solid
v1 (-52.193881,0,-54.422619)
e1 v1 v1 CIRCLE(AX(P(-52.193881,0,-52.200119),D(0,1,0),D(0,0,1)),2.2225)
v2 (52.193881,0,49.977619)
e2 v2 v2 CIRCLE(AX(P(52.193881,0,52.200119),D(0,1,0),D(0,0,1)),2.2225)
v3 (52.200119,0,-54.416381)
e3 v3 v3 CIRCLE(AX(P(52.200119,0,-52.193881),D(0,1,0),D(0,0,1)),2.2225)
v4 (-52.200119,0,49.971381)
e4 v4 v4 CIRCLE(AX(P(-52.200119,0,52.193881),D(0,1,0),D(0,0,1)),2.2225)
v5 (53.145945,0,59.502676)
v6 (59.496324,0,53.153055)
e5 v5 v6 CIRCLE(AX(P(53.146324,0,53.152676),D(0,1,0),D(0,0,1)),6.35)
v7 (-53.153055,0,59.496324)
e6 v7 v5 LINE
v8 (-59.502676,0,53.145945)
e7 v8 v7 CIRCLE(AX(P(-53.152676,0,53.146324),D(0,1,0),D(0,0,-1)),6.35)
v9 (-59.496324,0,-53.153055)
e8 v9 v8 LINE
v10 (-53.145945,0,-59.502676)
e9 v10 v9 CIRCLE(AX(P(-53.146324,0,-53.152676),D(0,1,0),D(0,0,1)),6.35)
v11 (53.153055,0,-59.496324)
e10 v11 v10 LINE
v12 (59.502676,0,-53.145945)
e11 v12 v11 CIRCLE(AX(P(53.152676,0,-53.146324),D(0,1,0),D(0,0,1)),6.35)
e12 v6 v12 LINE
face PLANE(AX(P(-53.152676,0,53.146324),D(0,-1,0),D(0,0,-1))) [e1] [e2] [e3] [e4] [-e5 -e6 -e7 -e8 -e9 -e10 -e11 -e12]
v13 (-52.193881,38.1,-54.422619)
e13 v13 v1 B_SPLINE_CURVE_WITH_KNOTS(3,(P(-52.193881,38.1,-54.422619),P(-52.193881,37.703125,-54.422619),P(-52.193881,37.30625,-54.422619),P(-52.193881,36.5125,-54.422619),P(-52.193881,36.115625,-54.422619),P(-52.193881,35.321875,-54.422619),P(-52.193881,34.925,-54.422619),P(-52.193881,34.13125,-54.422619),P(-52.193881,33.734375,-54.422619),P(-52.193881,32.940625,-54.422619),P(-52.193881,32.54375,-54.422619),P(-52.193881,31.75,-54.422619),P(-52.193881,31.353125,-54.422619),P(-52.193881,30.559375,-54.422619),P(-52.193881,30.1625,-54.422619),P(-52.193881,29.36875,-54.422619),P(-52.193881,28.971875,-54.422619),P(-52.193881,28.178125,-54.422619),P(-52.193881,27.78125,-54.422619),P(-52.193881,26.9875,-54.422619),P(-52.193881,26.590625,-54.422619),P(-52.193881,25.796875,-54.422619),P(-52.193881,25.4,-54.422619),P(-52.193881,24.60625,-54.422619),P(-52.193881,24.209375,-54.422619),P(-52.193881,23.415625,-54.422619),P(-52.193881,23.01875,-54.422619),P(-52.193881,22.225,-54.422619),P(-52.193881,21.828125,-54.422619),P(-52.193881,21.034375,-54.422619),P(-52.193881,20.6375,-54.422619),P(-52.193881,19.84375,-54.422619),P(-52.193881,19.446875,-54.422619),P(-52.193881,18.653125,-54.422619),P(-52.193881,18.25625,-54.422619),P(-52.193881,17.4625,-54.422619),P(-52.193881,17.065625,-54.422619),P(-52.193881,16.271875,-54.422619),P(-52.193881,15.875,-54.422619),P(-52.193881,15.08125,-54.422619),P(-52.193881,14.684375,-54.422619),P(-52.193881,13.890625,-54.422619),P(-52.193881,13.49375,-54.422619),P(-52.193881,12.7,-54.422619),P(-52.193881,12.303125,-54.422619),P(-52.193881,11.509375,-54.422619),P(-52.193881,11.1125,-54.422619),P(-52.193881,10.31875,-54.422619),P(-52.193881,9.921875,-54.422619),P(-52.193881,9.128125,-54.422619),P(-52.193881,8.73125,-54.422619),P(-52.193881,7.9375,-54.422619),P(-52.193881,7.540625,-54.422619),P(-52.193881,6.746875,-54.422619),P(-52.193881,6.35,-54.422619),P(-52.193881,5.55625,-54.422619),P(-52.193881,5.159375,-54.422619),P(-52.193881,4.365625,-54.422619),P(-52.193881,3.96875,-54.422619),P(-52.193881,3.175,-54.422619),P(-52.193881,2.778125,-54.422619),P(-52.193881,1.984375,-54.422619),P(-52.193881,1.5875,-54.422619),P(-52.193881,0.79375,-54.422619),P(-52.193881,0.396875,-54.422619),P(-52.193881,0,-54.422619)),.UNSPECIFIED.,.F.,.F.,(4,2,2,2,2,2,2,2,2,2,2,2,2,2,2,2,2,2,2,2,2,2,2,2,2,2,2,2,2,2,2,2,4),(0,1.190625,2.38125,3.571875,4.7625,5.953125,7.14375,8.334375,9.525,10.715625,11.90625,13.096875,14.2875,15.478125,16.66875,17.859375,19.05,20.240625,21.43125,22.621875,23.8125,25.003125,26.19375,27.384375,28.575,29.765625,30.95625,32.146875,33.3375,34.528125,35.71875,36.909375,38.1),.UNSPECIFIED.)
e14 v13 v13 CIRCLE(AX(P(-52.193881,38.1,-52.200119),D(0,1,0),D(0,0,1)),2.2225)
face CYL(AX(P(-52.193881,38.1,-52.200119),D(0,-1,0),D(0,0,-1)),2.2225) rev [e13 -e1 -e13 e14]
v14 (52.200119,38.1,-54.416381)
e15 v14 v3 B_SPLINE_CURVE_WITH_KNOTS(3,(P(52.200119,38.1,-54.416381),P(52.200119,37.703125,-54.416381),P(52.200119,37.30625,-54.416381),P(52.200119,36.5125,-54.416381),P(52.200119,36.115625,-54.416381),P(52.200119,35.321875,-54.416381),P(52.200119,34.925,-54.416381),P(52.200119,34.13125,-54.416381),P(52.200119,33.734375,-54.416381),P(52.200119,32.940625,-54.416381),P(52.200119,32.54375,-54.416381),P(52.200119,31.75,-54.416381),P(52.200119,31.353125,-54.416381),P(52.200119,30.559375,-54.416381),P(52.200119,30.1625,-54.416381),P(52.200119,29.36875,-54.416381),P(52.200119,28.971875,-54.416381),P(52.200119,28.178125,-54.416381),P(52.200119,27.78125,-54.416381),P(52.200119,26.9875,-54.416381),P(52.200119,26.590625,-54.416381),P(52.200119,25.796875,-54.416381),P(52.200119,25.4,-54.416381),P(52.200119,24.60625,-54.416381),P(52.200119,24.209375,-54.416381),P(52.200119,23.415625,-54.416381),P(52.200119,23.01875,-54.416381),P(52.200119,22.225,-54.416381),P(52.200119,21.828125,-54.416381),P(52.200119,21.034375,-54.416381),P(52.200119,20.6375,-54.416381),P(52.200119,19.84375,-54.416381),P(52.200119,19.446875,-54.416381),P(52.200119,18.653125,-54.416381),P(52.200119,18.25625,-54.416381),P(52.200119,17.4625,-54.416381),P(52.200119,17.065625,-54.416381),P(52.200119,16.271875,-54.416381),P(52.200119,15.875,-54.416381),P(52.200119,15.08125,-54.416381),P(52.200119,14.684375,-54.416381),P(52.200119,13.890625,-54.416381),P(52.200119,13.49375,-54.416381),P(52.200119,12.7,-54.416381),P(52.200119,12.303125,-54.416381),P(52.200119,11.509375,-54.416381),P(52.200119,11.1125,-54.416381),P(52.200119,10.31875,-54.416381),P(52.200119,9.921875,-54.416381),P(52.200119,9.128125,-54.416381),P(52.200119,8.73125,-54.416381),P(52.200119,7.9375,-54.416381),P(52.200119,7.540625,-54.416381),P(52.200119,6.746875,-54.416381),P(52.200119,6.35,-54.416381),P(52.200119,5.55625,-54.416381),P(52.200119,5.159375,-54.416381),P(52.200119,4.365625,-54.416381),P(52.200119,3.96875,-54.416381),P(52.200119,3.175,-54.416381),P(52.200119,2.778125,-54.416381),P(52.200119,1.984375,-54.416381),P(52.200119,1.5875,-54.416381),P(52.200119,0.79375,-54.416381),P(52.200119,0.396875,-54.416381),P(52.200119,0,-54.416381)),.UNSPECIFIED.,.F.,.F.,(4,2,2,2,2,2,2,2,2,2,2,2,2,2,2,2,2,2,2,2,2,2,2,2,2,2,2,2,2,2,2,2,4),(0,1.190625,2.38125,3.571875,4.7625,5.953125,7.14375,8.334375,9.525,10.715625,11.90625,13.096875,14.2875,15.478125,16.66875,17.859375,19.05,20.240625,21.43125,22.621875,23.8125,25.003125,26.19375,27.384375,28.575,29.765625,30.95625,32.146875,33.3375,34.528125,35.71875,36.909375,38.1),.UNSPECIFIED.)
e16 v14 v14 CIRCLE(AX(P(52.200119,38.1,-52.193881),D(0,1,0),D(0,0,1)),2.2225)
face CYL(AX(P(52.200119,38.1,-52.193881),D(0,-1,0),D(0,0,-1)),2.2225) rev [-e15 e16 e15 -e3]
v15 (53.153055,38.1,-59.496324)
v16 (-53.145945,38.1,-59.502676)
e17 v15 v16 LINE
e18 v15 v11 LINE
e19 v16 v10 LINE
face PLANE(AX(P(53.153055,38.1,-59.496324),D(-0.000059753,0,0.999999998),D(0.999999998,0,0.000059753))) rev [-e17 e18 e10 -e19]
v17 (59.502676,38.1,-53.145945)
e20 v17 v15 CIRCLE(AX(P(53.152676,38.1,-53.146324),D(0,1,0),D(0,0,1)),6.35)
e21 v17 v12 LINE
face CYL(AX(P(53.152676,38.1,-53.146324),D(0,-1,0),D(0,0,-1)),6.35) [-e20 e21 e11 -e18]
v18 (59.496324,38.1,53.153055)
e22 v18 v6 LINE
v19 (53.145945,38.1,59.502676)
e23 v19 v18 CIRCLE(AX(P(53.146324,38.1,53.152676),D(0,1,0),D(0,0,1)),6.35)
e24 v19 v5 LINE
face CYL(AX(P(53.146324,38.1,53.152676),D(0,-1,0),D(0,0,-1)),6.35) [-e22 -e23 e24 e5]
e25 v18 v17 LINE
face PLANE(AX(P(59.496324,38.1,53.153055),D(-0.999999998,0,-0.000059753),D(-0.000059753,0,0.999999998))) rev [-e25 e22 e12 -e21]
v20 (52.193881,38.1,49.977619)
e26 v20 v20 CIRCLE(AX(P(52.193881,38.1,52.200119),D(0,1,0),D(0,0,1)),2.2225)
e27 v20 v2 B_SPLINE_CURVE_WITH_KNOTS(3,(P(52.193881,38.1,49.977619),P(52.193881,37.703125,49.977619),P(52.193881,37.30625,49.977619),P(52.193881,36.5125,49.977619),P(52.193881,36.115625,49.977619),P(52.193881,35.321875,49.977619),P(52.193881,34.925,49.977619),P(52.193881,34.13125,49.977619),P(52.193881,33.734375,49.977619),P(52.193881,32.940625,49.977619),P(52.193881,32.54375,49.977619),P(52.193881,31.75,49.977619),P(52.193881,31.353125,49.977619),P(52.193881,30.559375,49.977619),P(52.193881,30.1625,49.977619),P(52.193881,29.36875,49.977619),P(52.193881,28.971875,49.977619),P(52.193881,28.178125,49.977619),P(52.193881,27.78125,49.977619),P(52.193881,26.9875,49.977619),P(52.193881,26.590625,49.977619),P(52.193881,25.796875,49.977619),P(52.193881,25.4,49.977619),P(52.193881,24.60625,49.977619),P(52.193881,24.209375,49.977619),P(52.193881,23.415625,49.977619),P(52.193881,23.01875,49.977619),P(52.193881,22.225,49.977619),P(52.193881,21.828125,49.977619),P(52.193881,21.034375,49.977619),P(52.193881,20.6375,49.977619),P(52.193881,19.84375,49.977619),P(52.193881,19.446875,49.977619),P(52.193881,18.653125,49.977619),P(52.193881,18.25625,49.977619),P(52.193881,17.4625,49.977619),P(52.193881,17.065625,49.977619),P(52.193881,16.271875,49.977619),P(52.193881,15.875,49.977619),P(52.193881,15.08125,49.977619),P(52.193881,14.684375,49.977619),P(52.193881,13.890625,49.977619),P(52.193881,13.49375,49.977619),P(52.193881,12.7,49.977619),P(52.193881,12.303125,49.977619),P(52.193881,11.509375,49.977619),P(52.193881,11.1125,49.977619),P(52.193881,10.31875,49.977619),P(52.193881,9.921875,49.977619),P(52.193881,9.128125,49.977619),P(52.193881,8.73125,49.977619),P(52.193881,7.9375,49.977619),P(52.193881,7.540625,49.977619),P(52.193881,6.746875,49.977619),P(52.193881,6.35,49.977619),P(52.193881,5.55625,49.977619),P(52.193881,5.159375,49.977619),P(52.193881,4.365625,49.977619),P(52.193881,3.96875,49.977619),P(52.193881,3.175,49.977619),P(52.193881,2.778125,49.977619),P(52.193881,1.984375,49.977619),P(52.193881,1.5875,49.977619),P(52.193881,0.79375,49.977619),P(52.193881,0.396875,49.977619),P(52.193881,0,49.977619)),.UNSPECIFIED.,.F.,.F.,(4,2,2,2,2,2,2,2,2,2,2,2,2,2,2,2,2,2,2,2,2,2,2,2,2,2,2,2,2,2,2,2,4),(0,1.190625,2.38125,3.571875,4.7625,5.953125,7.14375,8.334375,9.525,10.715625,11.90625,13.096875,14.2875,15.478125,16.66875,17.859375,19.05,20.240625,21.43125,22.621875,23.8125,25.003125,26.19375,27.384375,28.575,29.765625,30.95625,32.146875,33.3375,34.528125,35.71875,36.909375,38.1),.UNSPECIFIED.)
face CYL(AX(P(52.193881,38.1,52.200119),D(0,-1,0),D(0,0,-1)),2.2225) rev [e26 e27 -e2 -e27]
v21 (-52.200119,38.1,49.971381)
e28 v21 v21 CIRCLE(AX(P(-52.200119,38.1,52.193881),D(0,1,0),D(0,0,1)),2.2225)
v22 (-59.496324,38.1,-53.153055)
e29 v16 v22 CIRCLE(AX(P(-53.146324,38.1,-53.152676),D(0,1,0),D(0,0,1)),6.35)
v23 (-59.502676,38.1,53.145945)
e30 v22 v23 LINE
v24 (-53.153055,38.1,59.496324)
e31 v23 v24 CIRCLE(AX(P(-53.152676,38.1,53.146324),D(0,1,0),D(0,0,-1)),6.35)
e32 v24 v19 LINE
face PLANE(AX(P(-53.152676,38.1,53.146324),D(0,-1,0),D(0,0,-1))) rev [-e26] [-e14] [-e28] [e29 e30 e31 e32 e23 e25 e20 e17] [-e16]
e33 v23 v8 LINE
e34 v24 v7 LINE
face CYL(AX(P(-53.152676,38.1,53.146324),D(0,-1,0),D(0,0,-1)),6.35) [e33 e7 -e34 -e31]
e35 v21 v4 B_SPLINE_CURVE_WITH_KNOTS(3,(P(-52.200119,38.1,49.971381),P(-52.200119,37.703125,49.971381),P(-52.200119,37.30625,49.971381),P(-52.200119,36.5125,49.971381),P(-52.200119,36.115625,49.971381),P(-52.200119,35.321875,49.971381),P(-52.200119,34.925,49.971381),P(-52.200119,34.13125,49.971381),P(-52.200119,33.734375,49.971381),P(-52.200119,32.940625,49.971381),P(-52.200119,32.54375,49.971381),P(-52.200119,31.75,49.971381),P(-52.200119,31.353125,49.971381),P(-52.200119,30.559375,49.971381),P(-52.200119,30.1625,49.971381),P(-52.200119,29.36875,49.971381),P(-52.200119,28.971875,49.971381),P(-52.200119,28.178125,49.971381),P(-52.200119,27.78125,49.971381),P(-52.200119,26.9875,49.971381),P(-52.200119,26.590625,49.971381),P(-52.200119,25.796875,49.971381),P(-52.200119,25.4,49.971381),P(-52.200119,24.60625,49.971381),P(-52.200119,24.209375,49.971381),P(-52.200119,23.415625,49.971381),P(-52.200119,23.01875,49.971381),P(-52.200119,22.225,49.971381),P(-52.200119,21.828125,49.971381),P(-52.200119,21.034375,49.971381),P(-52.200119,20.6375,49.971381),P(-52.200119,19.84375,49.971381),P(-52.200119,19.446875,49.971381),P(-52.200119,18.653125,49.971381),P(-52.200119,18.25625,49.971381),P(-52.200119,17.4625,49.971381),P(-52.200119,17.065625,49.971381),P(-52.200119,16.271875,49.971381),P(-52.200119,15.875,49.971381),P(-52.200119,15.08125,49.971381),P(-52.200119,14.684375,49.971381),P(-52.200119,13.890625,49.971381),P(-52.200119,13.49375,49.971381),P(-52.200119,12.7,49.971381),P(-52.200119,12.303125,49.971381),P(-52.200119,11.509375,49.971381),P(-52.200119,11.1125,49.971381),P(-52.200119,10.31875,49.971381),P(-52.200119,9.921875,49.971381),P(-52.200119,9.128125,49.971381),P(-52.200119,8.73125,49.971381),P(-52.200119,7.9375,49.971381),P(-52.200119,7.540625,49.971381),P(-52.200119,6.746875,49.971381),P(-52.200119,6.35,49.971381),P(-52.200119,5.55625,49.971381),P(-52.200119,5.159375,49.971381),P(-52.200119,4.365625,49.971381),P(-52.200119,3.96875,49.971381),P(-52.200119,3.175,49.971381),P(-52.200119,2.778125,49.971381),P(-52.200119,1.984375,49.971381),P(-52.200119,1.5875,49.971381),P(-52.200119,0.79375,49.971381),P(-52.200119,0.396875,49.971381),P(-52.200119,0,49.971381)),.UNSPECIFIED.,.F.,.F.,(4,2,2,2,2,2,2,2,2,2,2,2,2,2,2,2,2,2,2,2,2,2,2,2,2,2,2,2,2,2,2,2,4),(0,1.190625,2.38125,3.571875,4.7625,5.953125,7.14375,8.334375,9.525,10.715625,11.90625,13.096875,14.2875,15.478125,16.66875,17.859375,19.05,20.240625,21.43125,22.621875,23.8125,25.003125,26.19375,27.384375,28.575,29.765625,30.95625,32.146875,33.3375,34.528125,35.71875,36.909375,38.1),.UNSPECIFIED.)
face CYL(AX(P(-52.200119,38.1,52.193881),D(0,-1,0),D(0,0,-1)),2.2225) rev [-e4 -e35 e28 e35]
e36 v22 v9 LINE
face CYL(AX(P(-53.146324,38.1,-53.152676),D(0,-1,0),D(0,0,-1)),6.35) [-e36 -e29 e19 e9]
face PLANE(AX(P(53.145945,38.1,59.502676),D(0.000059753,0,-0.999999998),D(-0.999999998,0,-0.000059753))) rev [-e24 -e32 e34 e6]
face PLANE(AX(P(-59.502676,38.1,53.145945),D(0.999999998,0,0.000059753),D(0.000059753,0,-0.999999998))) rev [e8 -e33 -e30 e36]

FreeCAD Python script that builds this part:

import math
import FreeCAD as App
import Part
import Sketcher
Q = App.Units.Quantity

doc = App.newDocument("Part")
body = doc.addObject("PartDesign::Body", "Body")

sketch1 = body.newObject("Sketcher::SketchObject", "Sketch")
sketch1.AttachmentSupport = (doc.getObject("XZ_Plane"), [""])
sketch1.MapMode = "FlatFace"
sketch1.addGeometry(Part.LineSegment(App.Vector(-53.2, 59.5, 0), App.Vector(53.1, 59.5, 0)), False)
sketch1.addGeometry(Part.ArcOfCircle(Part.Circle(App.Vector(53.1, 53.2, 0), App.Vector(0, 0, 1), 6.3), math.radians(0), math.radians(90)), False)
sketch1.addGeometry(Part.LineSegment(App.Vector(59.5, 53.2, 0), App.Vector(59.5, -53.1, 0)), False)
sketch1.addGeometry(Part.ArcOfCircle(Part.Circle(App.Vector(53.2, -53.1, 0), App.Vector(0, 0, 1), 6.3), math.radians(-90), math.radians(0)), False)
sketch1.addGeometry(Part.LineSegment(App.Vector(53.2, -59.5, 0), App.Vector(-53.1, -59.5, 0)), False)
sketch1.addGeometry(Part.ArcOfCircle(Part.Circle(App.Vector(-53.1, -53.2, 0), App.Vector(0, 0, 1), 6.3), math.radians(-180), math.radians(-90)), False)
sketch1.addGeometry(Part.LineSegment(App.Vector(-59.5, -53.2, 0), App.Vector(-59.5, 53.1, 0)), False)
sketch1.addGeometry(Part.ArcOfCircle(Part.Circle(App.Vector(-53.2, 53.1, 0), App.Vector(0, 0, 1), 6.3), math.radians(90), math.radians(180)), False)
sketch1.addGeometry(Part.Circle(App.Vector(52.2, 52.2, 0), App.Vector(0, 0, 1), 2.2), False)
sketch1.addGeometry(Part.Circle(App.Vector(-52.2, 52.2, 0), App.Vector(0, 0, 1), 2.2), False)
sketch1.addGeometry(Part.Circle(App.Vector(52.2, -52.2, 0), App.Vector(0, 0, 1), 2.2), False)
sketch1.addGeometry(Part.Circle(App.Vector(-52.2, -52.2, 0), App.Vector(0, 0, 1), 2.2), False)
sketch1.addConstraint(Sketcher.Constraint("Tangent", 0, 2, 1, 2))
sketch1.addConstraint(Sketcher.Constraint("Tangent", 1, 1, 2, 1))
sketch1.addConstraint(Sketcher.Constraint("Tangent", 2, 2, 3, 2))
sketch1.addConstraint(Sketcher.Constraint("Tangent", 3, 1, 4, 1))
sketch1.addConstraint(Sketcher.Constraint("Tangent", 4, 2, 5, 2))
sketch1.addConstraint(Sketcher.Constraint("Tangent", 5, 1, 6, 1))
sketch1.addConstraint(Sketcher.Constraint("Tangent", 6, 2, 7, 2))
sketch1.addConstraint(Sketcher.Constraint("Tangent", 7, 1, 0, 1))
sketch1.addConstraint(Sketcher.Constraint("Equal", 1, 3))
sketch1.addConstraint(Sketcher.Constraint("Equal", 3, 5))
sketch1.addConstraint(Sketcher.Constraint("Equal", 5, 7))
sketch1.addConstraint(Sketcher.Constraint("Equal", 8, 9))
sketch1.addConstraint(Sketcher.Constraint("Equal", 9, 10))
sketch1.addConstraint(Sketcher.Constraint("Equal", 10, 11))
sketch1.addConstraint(Sketcher.Constraint("Symmetric", 1, 3, 5, 3, -1, 1))
sketch1.addConstraint(Sketcher.Constraint("Symmetric", 3, 3, 7, 3, -1, 1))
sketch1.addConstraint(Sketcher.Constraint("Symmetric", 9, 3, 10, 3, -1, 1))
sketch1.addConstraint(Sketcher.Constraint("Symmetric", 8, 3, 11, 3, -1, 1))
sketch1.addConstraint(Sketcher.Constraint("Perpendicular", 0, 2))
sketch1.addConstraint(Sketcher.Constraint("Equal", 0, 2))
sketch1.addConstraint(Sketcher.Constraint("Radius", 1, Q("0.25 in")))
sketch1.addConstraint(Sketcher.Constraint("Diameter", 8, Q("0.175 in")))
sketch1.addConstraint(Sketcher.Constraint("DistanceX", 9, 3, 8, 3, Q("4.11 in")))
sketch1.addConstraint(Sketcher.Constraint("DistanceY", 10, 3, 8, 3, Q("4.11 in")))
sketch1.addConstraint(Sketcher.Constraint("Distance", 0, Q("4.185 in")))
sketch1.addConstraint(Sketcher.Constraint("DistanceX", -1, 1, 8, 3, 52.193881))
sketch1.addConstraint(Sketcher.Constraint("DistanceY", -1, 1, 8, 3, 52.200119))
sketch1.addConstraint(Sketcher.Constraint("DistanceX", 1, 3, 3, 3, 0.006352))
pad1 = body.newObject("PartDesign::Pad", "Pad")
pad1.Profile = sketch1
pad1.Length = Q("1.5 in")
pad1.Reversed = True

doc.recompute()
